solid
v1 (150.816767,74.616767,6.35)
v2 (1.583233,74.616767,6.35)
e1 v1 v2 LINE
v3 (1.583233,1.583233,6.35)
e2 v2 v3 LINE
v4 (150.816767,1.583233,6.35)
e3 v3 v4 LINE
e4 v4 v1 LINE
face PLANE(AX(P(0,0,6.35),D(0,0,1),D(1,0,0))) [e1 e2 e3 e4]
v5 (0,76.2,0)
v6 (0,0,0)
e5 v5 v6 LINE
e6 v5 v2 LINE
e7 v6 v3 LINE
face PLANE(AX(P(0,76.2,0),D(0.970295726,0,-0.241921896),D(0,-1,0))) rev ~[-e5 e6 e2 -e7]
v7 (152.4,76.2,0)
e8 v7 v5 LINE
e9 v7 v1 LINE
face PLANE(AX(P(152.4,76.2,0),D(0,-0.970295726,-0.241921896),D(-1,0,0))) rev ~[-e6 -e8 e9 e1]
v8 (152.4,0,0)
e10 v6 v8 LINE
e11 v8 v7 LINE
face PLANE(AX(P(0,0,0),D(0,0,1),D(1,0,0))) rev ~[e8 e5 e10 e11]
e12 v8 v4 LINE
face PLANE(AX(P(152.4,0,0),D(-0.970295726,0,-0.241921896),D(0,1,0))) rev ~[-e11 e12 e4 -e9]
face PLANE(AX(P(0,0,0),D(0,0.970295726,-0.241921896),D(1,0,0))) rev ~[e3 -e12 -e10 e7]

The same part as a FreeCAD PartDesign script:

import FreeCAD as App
import Part
import Sketcher
from FreeCAD import Vector
Q = App.Units.Quantity


def add_polygon(sketch, points):
    """Adds a closed chain of lines whose ends are joined by coincident constraints."""
    first, n = sketch.GeometryCount, len(points)
    for a, b in zip(points, points[1:] + points[:1]):
        sketch.addGeometry(Part.LineSegment(App.Vector(*a, 0), App.Vector(*b, 0)), False)
    for i in range(n):
        sketch.addConstraint(Sketcher.Constraint("Coincident", first + i, 2, first + (i + 1) % n, 1))

doc = App.newDocument("Part")
params = doc.addObject("Spreadsheet::Sheet", "Params")
for row, (alias, value) in enumerate([
    ("sketch1_width", "6 in"),
    ("sketch1_height", "3 in"),
    ("pad1_length", "0.25 in"),
    ("pad1_taper", "-14 deg"),
], start=1):
    params.set(f"A{row}", alias)
    params.set(f"B{row}", "=" + value)
    params.setAlias(f"B{row}", alias)

body = doc.addObject("PartDesign::Body", "Body")

sketch1 = body.newObject("Sketcher::SketchObject", "Sketch")
sketch1.AttachmentSupport = (doc.getObject("XY_Plane"), [""])
sketch1.MapMode = "FlatFace"
add_polygon(sketch1, [(0, 76), (0, 0), (152, 0), (152, 76)])
sketch1.addConstraint(Sketcher.Constraint("Vertical", 0))
sketch1.addConstraint(Sketcher.Constraint("Horizontal", 1))
sketch1.addConstraint(Sketcher.Constraint("Vertical", 2))
sketch1.addConstraint(Sketcher.Constraint("Horizontal", 3))
sketch1.addConstraint(Sketcher.Constraint("Coincident", 0, 2, -1, 1))
sketch1.addConstraint(Sketcher.Constraint("DistanceX", 1, 1, 1, 2, Q("6 in")))
sketch1.addConstraint(Sketcher.Constraint("DistanceY", 0, 2, 0, 1, Q("3 in")))
sketch1.setExpression("Constraints[9]", "Params.sketch1_width")
sketch1.setExpression("Constraints[10]", "Params.sketch1_height")
pad1 = body.newObject("PartDesign::Pad", "Pad")
pad1.Profile = sketch1
pad1.setExpression("Length", "Params.pad1_length")
pad1.setExpression("TaperAngle", "Params.pad1_taper")

doc.recompute()
